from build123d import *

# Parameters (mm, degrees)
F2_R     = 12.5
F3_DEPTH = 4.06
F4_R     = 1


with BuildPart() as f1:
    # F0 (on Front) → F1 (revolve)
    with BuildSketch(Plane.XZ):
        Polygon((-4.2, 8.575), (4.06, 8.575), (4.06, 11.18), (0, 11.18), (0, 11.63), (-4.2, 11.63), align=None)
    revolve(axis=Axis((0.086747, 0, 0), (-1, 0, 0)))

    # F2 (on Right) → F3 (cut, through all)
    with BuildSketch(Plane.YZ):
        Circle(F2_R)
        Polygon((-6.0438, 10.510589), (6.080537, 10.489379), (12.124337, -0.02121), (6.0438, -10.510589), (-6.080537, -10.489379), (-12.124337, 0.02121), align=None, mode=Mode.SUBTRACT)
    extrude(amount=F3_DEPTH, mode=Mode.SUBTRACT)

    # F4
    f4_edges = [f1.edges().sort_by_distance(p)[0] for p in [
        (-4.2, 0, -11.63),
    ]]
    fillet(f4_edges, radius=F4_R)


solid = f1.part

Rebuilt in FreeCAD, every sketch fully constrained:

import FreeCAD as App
import Part
import Sketcher
from FreeCAD import Vector


def edges_at(feature, points):
    """Names of the edges that pass closest to the given points."""
    edges = feature.Shape.Edges
    near = lambda p: min(range(len(edges)), key=lambda i: edges[i].distToShape(Part.Vertex(*p))[0])
    return sorted({f"Edge{near(p) + 1}" for p in points})

doc = App.newDocument("Part")
body = doc.addObject("PartDesign::Body", "Body")

sketch1 = doc.addObject("Sketcher::SketchObject", "Sketch")
body.addObject(sketch1)
sketch1.AttachmentSupport = (doc.XZ_Plane, [""])
sketch1.MapMode = "FlatFace"
sketch1.addGeometry([
    Part.LineSegment(Vector(-4.2, 8.57, 0), Vector(4.06, 8.57, 0)),
    Part.LineSegment(Vector(4.06, 8.57, 0), Vector(4.06, 11.18, 0)),
    Part.LineSegment(Vector(4.06, 11.18, 0), Vector(0, 11.18, 0)),
    Part.LineSegment(Vector(0, 11.18, 0), Vector(0, 11.63, 0)),
    Part.LineSegment(Vector(0, 11.63, 0), Vector(-4.2, 11.63, 0)),
    Part.LineSegment(Vector(-4.2, 11.63, 0), Vector(-4.2, 8.57, 0)),
], False)
sketch1.addConstraint([
    Sketcher.Constraint("Coincident", 0, 2, 1, 1),
    Sketcher.Constraint("Coincident", 1, 2, 2, 1),
    Sketcher.Constraint("Coincident", 2, 2, 3, 1),
    Sketcher.Constraint("Coincident", 3, 2, 4, 1),
    Sketcher.Constraint("Coincident", 4, 2, 5, 1),
    Sketcher.Constraint("Coincident", 5, 2, 0, 1),
    Sketcher.Constraint("Horizontal", 0),
    Sketcher.Constraint("Vertical", 1),
    Sketcher.Constraint("Horizontal", 2),
    Sketcher.Constraint("Vertical", 3),
    Sketcher.Constraint("Horizontal", 4),
    Sketcher.Constraint("Vertical", 5),
    Sketcher.Constraint("PointOnObject", 2, 2, -2),
    Sketcher.Constraint("DistanceX", 4, 2, 4, 1, 4.2),
    Sketcher.Constraint("DistanceX", 0, 1, 0, 2, 8.26),
    Sketcher.Constraint("DistanceY", 3, 1, 3, 2, 0.45),
    Sketcher.Constraint("DistanceY", 1, 1, 1, 2, 2.605),
    Sketcher.Constraint("DistanceY", -1, 1, 1, 2, 11.18),
])
revolution = doc.addObject("PartDesign::Revolution", "Revolution")
body.addObject(revolution)
revolution.Profile = sketch1
revolution.ReferenceAxis = (sketch1, ["H_Axis"])
revolution.Angle = 360

sketch2 = doc.addObject("Sketcher::SketchObject", "Sketch001")
body.addObject(sketch2)
sketch2.AttachmentSupport = (doc.YZ_Plane, [""])
sketch2.MapMode = "FlatFace"
sketch2.addGeometry([
    Part.Circle(Vector(0, 0, 0), Vector(0, 0, 1), 12),
    Part.LineSegment(Vector(-12, 0, 0), Vector(-6, 11, 0)),
    Part.LineSegment(Vector(-6, 11, 0), Vector(6, 10, 0)),
    Part.LineSegment(Vector(6, 10, 0), Vector(12, 0, 0)),
    Part.LineSegment(Vector(12, 0, 0), Vector(6, -11, 0)),
    Part.LineSegment(Vector(6, -11, 0), Vector(-6, -10, 0)),
    Part.LineSegment(Vector(-6, -10, 0), Vector(-12, 0, 0)),
], False)
sketch2.addConstraint([
    Sketcher.Constraint("Coincident", 1, 2, 2, 1),
    Sketcher.Constraint("Coincident", 2, 2, 3, 1),
    Sketcher.Constraint("Coincident", 3, 2, 4, 1),
    Sketcher.Constraint("Coincident", 4, 2, 5, 1),
    Sketcher.Constraint("Coincident", 5, 2, 6, 1),
    Sketcher.Constraint("Coincident", 6, 2, 1, 1),
    Sketcher.Constraint("Coincident", 0, 3, -1, 1),
    Sketcher.Constraint("Symmetric", 1, 2, 4, 2, -1, 1),
    Sketcher.Constraint("Symmetric", 2, 2, 5, 2, -1, 1),
    Sketcher.Constraint("Symmetric", 3, 2, 6, 2, -1, 1),
    Sketcher.Constraint("Equal", 1, 2),
    Sketcher.Constraint("Equal", 2, 3),
    Sketcher.Constraint("Diameter", 0, 25.0),
    Sketcher.Constraint("DistanceX", 1, 2, -1, 1, 6.0438),
    Sketcher.Constraint("DistanceX", 2, 2, 3, 2, 6.0438),
    Sketcher.Constraint("DistanceY", 3, 2, 1, 2, 10.531799),
    Sketcher.Constraint("DistanceY", -1, 1, 1, 2, 10.510589),
])
pocket1 = doc.addObject("PartDesign::Pocket", "Pocket")
body.addObject(pocket1)
pocket1.Profile = sketch2
pocket1.Type = "ThroughAll"
pocket1.Reversed = True
doc.recompute()

fillet = doc.addObject("PartDesign::Fillet", "Fillet")
body.addObject(fillet)
fillet.Base = (pocket1, edges_at(pocket1, [(-4.2, 0, -11.63)]))
fillet.Radius = 1

doc.recompute()
